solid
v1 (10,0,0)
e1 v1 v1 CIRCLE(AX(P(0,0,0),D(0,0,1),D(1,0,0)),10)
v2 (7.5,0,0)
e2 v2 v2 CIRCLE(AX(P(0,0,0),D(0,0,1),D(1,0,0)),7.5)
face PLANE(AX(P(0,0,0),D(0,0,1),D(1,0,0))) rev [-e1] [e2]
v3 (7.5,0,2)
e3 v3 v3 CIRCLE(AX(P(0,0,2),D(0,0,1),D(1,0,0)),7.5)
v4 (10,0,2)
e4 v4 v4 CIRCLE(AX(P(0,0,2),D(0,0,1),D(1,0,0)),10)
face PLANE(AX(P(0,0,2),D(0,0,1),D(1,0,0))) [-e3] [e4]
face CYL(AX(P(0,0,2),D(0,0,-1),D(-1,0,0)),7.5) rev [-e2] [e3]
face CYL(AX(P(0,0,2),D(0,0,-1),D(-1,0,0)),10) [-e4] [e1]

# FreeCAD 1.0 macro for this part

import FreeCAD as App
import Part
import Sketcher

V = App.Vector

doc = App.newDocument("Part")
body = doc.addObject("PartDesign::Body", "Body")

# Sketch on XY plane
sketch1 = doc.addObject("Sketcher::SketchObject", "Sketch")
body.addObject(sketch1)
sketch1.AttachmentSupport = (doc.XY_Plane, [""])
sketch1.MapMode = "FlatFace"
sketch1.addGeometry(Part.Circle(V(0, 0, 0), V(0, 0, 1), 10), False)
sketch1.addGeometry(Part.Circle(V(0, 0, 0), V(0, 0, 1), 7.5), False)
sketch1.addConstraint(Sketcher.Constraint("Coincident", 0, 3, -1, 1))
sketch1.addConstraint(Sketcher.Constraint("Coincident", 1, 3, -1, 1))
sketch1.addConstraint(Sketcher.Constraint("Diameter", 0, 20.0))
sketch1.addConstraint(Sketcher.Constraint("Diameter", 1, 15.0))
pad1 = doc.addObject("PartDesign::Pad", "Pad")
body.addObject(pad1)
pad1.Profile = sketch1
pad1.Length = 2

doc.recompute()
